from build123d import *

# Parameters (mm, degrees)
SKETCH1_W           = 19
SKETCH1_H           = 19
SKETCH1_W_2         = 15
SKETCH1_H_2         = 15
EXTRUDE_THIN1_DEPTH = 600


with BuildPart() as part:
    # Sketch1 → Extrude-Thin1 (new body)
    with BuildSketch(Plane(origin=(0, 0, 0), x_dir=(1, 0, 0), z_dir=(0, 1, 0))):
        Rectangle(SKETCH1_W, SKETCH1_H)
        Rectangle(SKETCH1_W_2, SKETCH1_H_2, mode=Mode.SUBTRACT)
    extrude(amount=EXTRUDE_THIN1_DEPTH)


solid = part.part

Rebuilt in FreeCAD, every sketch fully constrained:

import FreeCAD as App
import Part
import Sketcher

V = App.Vector


def add_polygon(sketch, points):
    """Adds a closed chain of lines whose ends are joined by coincident constraints."""
    first, n = sketch.GeometryCount, len(points)
    for a, b in zip(points, points[1:] + points[:1]):
        sketch.addGeometry(Part.LineSegment(App.Vector(*a, 0), App.Vector(*b, 0)), False)
    for i in range(n):
        sketch.addConstraint(Sketcher.Constraint("Coincident", first + i, 2, first + (i + 1) % n, 1))

doc = App.newDocument("Part")
params = doc.addObject("Spreadsheet::Sheet", "Params")
for row, (alias, value) in enumerate([
    ("sketch1_width", "19 mm"),
    ("sketch1_width2", "15 mm"),
    ("pad1_length", "600 mm"),
], start=1):
    params.set(f"A{row}", alias)
    params.set(f"B{row}", "=" + value)
    params.setAlias(f"B{row}", alias)

body = doc.addObject("PartDesign::Body", "Body")

sketch1 = body.newObject("Sketcher::SketchObject", "Sketch")
sketch1.AttachmentSupport = (doc.getObject("XZ_Plane"), [""])
sketch1.MapMode = "FlatFace"
add_polygon(sketch1, [(-10, -10), (-10, 10), (10, 10), (10, -10)])
add_polygon(sketch1, [(8, 8), (-8, 8), (-8, -8), (8, -8)])
sketch1.addConstraint(Sketcher.Constraint("Vertical", 0))
sketch1.addConstraint(Sketcher.Constraint("Horizontal", 1))
sketch1.addConstraint(Sketcher.Constraint("Vertical", 2))
sketch1.addConstraint(Sketcher.Constraint("Horizontal", 3))
sketch1.addConstraint(Sketcher.Constraint("Horizontal", 4))
sketch1.addConstraint(Sketcher.Constraint("Vertical", 5))
sketch1.addConstraint(Sketcher.Constraint("Horizontal", 6))
sketch1.addConstraint(Sketcher.Constraint("Vertical", 7))
sketch1.addConstraint(Sketcher.Constraint("Symmetric", 0, 2, 2, 2, -1, 1))
sketch1.addConstraint(Sketcher.Constraint("Symmetric", 4, 2, 6, 2, -1, 1))
sketch1.addConstraint(Sketcher.Constraint("Equal", 3, 0))
sketch1.addConstraint(Sketcher.Constraint("Equal", 6, 5))
sketch1.addConstraint(Sketcher.Constraint("DistanceX", 1, 1, 1, 2, 19.0))
sketch1.addConstraint(Sketcher.Constraint("DistanceX", 4, 2, 4, 1, 15.0))
sketch1.setExpression("Constraints[20]", "Params.sketch1_width")
sketch1.setExpression("Constraints[21]", "Params.sketch1_width2")
pad1 = body.newObject("PartDesign::Pad", "Pad")
pad1.Profile = sketch1
pad1.setExpression("Length", "Params.pad1_length")
pad1.Reversed = True

doc.recompute()
